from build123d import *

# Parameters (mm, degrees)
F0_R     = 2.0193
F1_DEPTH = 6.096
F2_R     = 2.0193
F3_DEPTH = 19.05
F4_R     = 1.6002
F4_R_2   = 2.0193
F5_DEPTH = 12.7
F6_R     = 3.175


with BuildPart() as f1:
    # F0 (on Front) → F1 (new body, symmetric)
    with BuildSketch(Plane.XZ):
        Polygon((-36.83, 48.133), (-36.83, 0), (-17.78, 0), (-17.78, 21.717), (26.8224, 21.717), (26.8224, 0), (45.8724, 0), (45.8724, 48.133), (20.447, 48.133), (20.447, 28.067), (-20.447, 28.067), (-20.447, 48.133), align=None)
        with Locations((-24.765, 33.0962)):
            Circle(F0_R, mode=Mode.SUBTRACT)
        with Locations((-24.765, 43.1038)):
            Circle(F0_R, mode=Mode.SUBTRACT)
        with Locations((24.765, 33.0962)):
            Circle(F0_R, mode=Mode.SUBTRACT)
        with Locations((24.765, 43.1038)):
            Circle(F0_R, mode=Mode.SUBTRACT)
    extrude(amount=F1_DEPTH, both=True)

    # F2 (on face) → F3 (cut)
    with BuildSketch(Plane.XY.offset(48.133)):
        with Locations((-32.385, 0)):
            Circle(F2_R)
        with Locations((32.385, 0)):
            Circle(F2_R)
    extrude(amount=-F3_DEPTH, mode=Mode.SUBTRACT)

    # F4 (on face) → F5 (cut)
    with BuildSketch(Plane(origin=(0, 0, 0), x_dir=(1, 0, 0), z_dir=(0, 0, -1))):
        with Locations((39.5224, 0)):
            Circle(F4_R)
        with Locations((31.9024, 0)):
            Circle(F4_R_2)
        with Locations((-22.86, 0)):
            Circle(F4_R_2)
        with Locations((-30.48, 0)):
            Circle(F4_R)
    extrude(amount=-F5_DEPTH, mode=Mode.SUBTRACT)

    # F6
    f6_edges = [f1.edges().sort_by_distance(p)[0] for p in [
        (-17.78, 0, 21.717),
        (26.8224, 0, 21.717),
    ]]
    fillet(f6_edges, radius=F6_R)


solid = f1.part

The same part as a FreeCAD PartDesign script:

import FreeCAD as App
import Part
import Sketcher
from FreeCAD import Vector
Q = App.Units.Quantity


def edges_at(feature, points):
    """Names of the edges that pass closest to the given points."""
    edges = feature.Shape.Edges
    near = lambda p: min(range(len(edges)), key=lambda i: edges[i].distToShape(Part.Vertex(*p))[0])
    return sorted({f"Edge{near(p) + 1}" for p in points})


def add_polygon(sketch, points):
    """Adds a closed chain of lines whose ends are joined by coincident constraints."""
    first, n = sketch.GeometryCount, len(points)
    for a, b in zip(points, points[1:] + points[:1]):
        sketch.addGeometry(Part.LineSegment(App.Vector(*a, 0), App.Vector(*b, 0)), False)
    for i in range(n):
        sketch.addConstraint(Sketcher.Constraint("Coincident", first + i, 2, first + (i + 1) % n, 1))

doc = App.newDocument("Part")
params = doc.addObject("Spreadsheet::Sheet", "Params")
for row, (alias, value) in enumerate([
    ("sketch1_diameter", "0.159 in"),
    ("sketch1_width", "0.75 in"),
    ("sketch1_width2", "1.61 in"),
    ("sketch1_height", "0.79 in"),
    ("sketch1_width3", "1.756 in"),
    ("pad1_length", "0.48 in"),
    ("sketch2_diameter", "0.159 in"),
    ("pocket1_length", "0.75 in"),
    ("sketch3_diameter", "0.126 in"),
    ("sketch3_diameter2", "0.159 in"),
    ("pocket2_length", "0.5 in"),
    ("fillet_radius", "0.125 in"),
], start=1):
    params.set(f"A{row}", alias)
    params.set(f"B{row}", "=" + value)
    params.setAlias(f"B{row}", alias)

body = doc.addObject("PartDesign::Body", "Body")

sketch1 = doc.addObject("Sketcher::SketchObject", "Sketch")
body.addObject(sketch1)
sketch1.AttachmentSupport = (doc.XZ_Plane, [""])
sketch1.MapMode = "FlatFace"
add_polygon(sketch1, [(-36.8, 48.1), (-36.8, 0), (-17.8, 0), (-17.8, 21.7), (26.8, 21.7), (26.8, 0), (45.9, 0), (45.9, 48.1), (20.4, 48.1), (20.4, 28.1), (-20.4, 28.1), (-20.4, 48.1)])
sketch1.addGeometry(Part.Circle(Vector(-24.8, 33.1, 0), Vector(0, 0, 1), 2), False)
sketch1.addGeometry(Part.Circle(Vector(24.8, 33.1, 0), Vector(0, 0, 1), 2), False)
sketch1.addGeometry(Part.Circle(Vector(-24.8, 43.1, 0), Vector(0, 0, 1), 2), False)
sketch1.addGeometry(Part.Circle(Vector(24.8, 43.1, 0), Vector(0, 0, 1), 2), False)
sketch1.addConstraint(Sketcher.Constraint("Vertical", 0))
sketch1.addConstraint(Sketcher.Constraint("Horizontal", 1))
sketch1.addConstraint(Sketcher.Constraint("Vertical", 2))
sketch1.addConstraint(Sketcher.Constraint("Horizontal", 3))
sketch1.addConstraint(Sketcher.Constraint("Vertical", 4))
sketch1.addConstraint(Sketcher.Constraint("Horizontal", 5))
sketch1.addConstraint(Sketcher.Constraint("Vertical", 6))
sketch1.addConstraint(Sketcher.Constraint("Horizontal", 7))
sketch1.addConstraint(Sketcher.Constraint("Vertical", 8))
sketch1.addConstraint(Sketcher.Constraint("Horizontal", 9))
sketch1.addConstraint(Sketcher.Constraint("Vertical", 10))
sketch1.addConstraint(Sketcher.Constraint("Horizontal", 11))
sketch1.addConstraint(Sketcher.Constraint("Equal", 12, 13))
sketch1.addConstraint(Sketcher.Constraint("Equal", 13, 14))
sketch1.addConstraint(Sketcher.Constraint("Equal", 14, 15))
sketch1.addConstraint(Sketcher.Constraint("Symmetric", 12, 3, 13, 3, -2))
sketch1.addConstraint(Sketcher.Constraint("Symmetric", 14, 3, 15, 3, -2))
sketch1.addConstraint(Sketcher.Constraint("Symmetric", 7, 2, 10, 2, -2))
sketch1.addConstraint(Sketcher.Constraint("PointOnObject", 0, 2, -1))
sketch1.addConstraint(Sketcher.Constraint("PointOnObject", 4, 2, -1))
sketch1.addConstraint(Sketcher.Constraint("Vertical", 12, 3, 14, 3))
sketch1.addConstraint(Sketcher.Constraint("Equal", 1, 5))
sketch1.addConstraint(Sketcher.Constraint("Diameter", 12, Q("0.159 in")))
sketch1.addConstraint(Sketcher.Constraint("DistanceX", 1, 1, 1, 2, Q("0.75 in")))
sketch1.addConstraint(Sketcher.Constraint("DistanceX", 9, 2, 9, 1, Q("1.61 in")))
sketch1.addConstraint(Sketcher.Constraint("DistanceY", 8, 2, 8, 1, Q("0.79 in")))
sketch1.addConstraint(Sketcher.Constraint("DistanceX", 1, 2, -1, 1, Q("0.7 in")))
sketch1.addConstraint(Sketcher.Constraint("DistanceX", 3, 1, 3, 2, Q("1.756 in")))
sketch1.addConstraint(Sketcher.Constraint("DistanceY", 0, 2, 0, 1, Q("1.895 in")))
sketch1.addConstraint(Sketcher.Constraint("DistanceY", 2, 1, 2, 2, Q("0.855 in")))
sketch1.addConstraint(Sketcher.Constraint("DistanceX", 12, 3, 13, 3, Q("1.95 in")))
sketch1.addConstraint(Sketcher.Constraint("DistanceY", -1, 1, 12, 3, Q("1.303 in")))
sketch1.addConstraint(Sketcher.Constraint("DistanceY", -1, 1, 14, 3, Q("1.697 in")))
sketch1.setExpression("Constraints[34]", "Params.sketch1_diameter")
sketch1.setExpression("Constraints[35]", "Params.sketch1_width")
sketch1.setExpression("Constraints[36]", "Params.sketch1_width2")
sketch1.setExpression("Constraints[37]", "Params.sketch1_height")
sketch1.setExpression("Constraints[39]", "Params.sketch1_width3")
pad1 = doc.addObject("PartDesign::Pad", "Pad")
body.addObject(pad1)
pad1.Profile = sketch1
pad1.setExpression("Length", "Params.pad1_length")
pad1.Midplane = True

sketch2 = doc.addObject("Sketcher::SketchObject", "Sketch001")
body.addObject(sketch2)
sketch2.AttachmentSupport = (doc.XY_Plane, [""])
sketch2.MapMode = "FlatFace"
sketch2.AttachmentOffset = App.Placement(Vector(0, 0, 1.895 * 25.4), App.Rotation())
sketch2.addGeometry(Part.Circle(Vector(-32.4, 0, 0), Vector(0, 0, 1), 2), False)
sketch2.addGeometry(Part.Circle(Vector(32.4, 0, 0), Vector(0, 0, 1), 2), False)
sketch2.addConstraint(Sketcher.Constraint("Equal", 0, 1))
sketch2.addConstraint(Sketcher.Constraint("Symmetric", 0, 3, 1, 3, -1, 1))
sketch2.addConstraint(Sketcher.Constraint("PointOnObject", 0, 3, -1))
sketch2.addConstraint(Sketcher.Constraint("Diameter", 0, Q("0.159 in")))
sketch2.addConstraint(Sketcher.Constraint("DistanceX", 0, 3, 1, 3, Q("2.55 in")))
sketch2.setExpression("Constraints[3]", "Params.sketch2_diameter")
pocket1 = doc.addObject("PartDesign::Pocket", "Pocket")
body.addObject(pocket1)
pocket1.Profile = sketch2
pocket1.setExpression("Length", "Params.pocket1_length")

sketch3 = doc.addObject("Sketcher::SketchObject", "Sketch002")
body.addObject(sketch3)
sketch3.AttachmentSupport = (doc.XY_Plane, [""])
sketch3.MapMode = "FlatFace"
sketch3.addGeometry(Part.Circle(Vector(39.5, 0, 0), Vector(0, 0, 1), 1.6), False)
sketch3.addGeometry(Part.Circle(Vector(31.9, 0, 0), Vector(0, 0, 1), 2), False)
sketch3.addGeometry(Part.Circle(Vector(-22.9, 0, 0), Vector(0, 0, 1), 2), False)
sketch3.addGeometry(Part.Circle(Vector(-30.5, 0, 0), Vector(0, 0, 1), 1.6), False)
sketch3.addConstraint(Sketcher.Constraint("Equal", 1, 2))
sketch3.addConstraint(Sketcher.Constraint("Equal", 0, 3))
sketch3.addConstraint(Sketcher.Constraint("PointOnObject", 0, 3, -1))
sketch3.addConstraint(Sketcher.Constraint("PointOnObject", 1, 3, -1))
sketch3.addConstraint(Sketcher.Constraint("PointOnObject", 2, 3, -1))
sketch3.addConstraint(Sketcher.Constraint("PointOnObject", 3, 3, -1))
sketch3.addConstraint(Sketcher.Constraint("Diameter", 0, Q("0.126 in")))
sketch3.addConstraint(Sketcher.Constraint("Diameter", 1, Q("0.159 in")))
sketch3.addConstraint(Sketcher.Constraint("DistanceX", 2, 3, -1, 1, Q("0.9 in")))
sketch3.addConstraint(Sketcher.Constraint("DistanceX", 3, 3, -1, 1, Q("1.2 in")))
sketch3.addConstraint(Sketcher.Constraint("DistanceX", 1, 3, 0, 3, Q("0.3 in")))
sketch3.addConstraint(Sketcher.Constraint("DistanceX", -1, 1, 0, 3, Q("1.556 in")))
sketch3.setExpression("Constraints[6]", "Params.sketch3_diameter")
sketch3.setExpression("Constraints[7]", "Params.sketch3_diameter2")
pocket2 = doc.addObject("PartDesign::Pocket", "Pocket001")
body.addObject(pocket2)
pocket2.Profile = sketch3
pocket2.setExpression("Length", "Params.pocket2_length")
pocket2.Reversed = True
doc.recompute()

fillet = doc.addObject("PartDesign::Fillet", "Fillet")
body.addObject(fillet)
fillet.Base = (pocket2, edges_at(pocket2, [(-17.78, 0, 21.717), (26.822, 0, 21.717)]))
fillet.setExpression("Radius", "Params.fillet_radius")

doc.recompute()
